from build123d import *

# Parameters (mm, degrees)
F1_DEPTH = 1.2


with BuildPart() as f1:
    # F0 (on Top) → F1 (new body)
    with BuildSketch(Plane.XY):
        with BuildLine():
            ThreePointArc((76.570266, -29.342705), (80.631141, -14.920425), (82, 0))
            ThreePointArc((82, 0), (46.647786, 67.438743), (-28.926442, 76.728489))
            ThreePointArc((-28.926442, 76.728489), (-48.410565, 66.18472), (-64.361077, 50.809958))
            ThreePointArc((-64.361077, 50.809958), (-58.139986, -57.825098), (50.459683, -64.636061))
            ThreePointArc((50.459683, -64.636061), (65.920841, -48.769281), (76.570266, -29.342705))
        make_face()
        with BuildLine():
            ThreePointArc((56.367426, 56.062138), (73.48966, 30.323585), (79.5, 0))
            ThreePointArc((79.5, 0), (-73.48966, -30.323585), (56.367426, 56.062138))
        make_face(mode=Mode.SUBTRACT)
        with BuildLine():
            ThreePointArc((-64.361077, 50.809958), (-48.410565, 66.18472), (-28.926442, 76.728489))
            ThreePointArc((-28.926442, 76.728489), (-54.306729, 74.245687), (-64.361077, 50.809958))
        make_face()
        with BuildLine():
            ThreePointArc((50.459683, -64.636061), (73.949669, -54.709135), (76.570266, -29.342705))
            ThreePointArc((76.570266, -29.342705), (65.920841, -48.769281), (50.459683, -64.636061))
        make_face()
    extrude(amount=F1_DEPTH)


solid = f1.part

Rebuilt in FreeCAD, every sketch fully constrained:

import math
import FreeCAD as App
import Part
import Sketcher
from FreeCAD import Vector
Q = App.Units.Quantity

doc = App.newDocument("Part")
body = doc.addObject("PartDesign::Body", "Body")

sketch1 = body.newObject("Sketcher::SketchObject", "Sketch")
sketch1.AttachmentSupport = (doc.getObject("XY_Plane"), [""])
sketch1.MapMode = "FlatFace"
sketch1.addGeometry([
    Part.ArcOfCircle(Part.Circle(Vector(-0.000002, 0.000001, 0), Vector(0, 0, 1), 82.000002), math.radians(-20.967471), math.radians(-0.000001)),
    Part.ArcOfCircle(Part.Circle(Vector(-0.000001, 0, 0), Vector(0, 0, 1), 82.000001), math.radians(0), math.radians(110.656313)),
    Part.ArcOfCircle(Part.Circle(Vector(-39.517185, 54.026095, 0), Vector(0, 0, 1), 25.051198), math.radians(64.990791), math.radians(187.376137)),
    Part.ArcOfCircle(Part.Circle(Vector(0, 0.000001, 0), Vector(0, 0, 1), 82), math.radians(141.710615), math.radians(307.978227)),
    Part.ArcOfCircle(Part.Circle(Vector(53.810694, -39.810003, 0), Vector(0, 0, 1), 25.051196), math.radians(-97.6873), math.radians(24.698057)),
    Part.ArcOfCircle(Part.Circle(Vector(0, 0, 0), Vector(0, 0, 1), 79.5), math.radians(44.844421), math.radians(360)),
    Part.ArcOfCircle(Part.Circle(Vector(-0.000006, -0.000002, 0), Vector(0, 0, 1), 79.500006), math.radians(0.000002), math.radians(44.844419)),
], False)
sketch1.addConstraint([
    Sketcher.Constraint("Tangent", 0, 2, 1, 1),
    Sketcher.Constraint("Coincident", 1, 2, 2, 1),
    Sketcher.Constraint("Coincident", 2, 2, 3, 1),
    Sketcher.Constraint("Coincident", 3, 2, 4, 1),
    Sketcher.Constraint("Coincident", 4, 2, 0, 1),
    Sketcher.Constraint("Tangent", 5, 1, 6, 2),
    Sketcher.Constraint("Coincident", 6, 1, 5, 2),
    Sketcher.Constraint("Coincident", 0, 3, -1, 1),
    Sketcher.Constraint("Coincident", 3, 3, -1, 1),
    Sketcher.Constraint("Coincident", 5, 3, -1, 1),
    Sketcher.Constraint("Equal", 0, 1),
    Sketcher.Constraint("Equal", 1, 3),
    Sketcher.Constraint("Equal", 2, 4),
    Sketcher.Constraint("PointOnObject", 0, 2, -1),
    Sketcher.Constraint("PointOnObject", 6, 1, -1),
    Sketcher.Constraint("Radius", 0, Q("82.000002 mm")),
    Sketcher.Constraint("Radius", 5, Q("79.5 mm")),
    Sketcher.Constraint("Radius", 2, Q("25.051198 mm")),
    Sketcher.Constraint("DistanceY", 4, 3, 2, 3, Q("93.836098 mm")),
    Sketcher.Constraint("DistanceY", 4, 3, 4, 2, Q("10.467298 mm")),
    Sketcher.Constraint("DistanceX", 1, 2, -1, 1, Q("28.926442 mm")),
    Sketcher.Constraint("DistanceY", -1, 1, 2, 2, Q("50.809958 mm")),
    Sketcher.Constraint("DistanceY", -1, 1, 5, 1, Q("56.062138 mm")),
])
pad1 = body.newObject("PartDesign::Pad", "Pad")
pad1.Profile = sketch1
pad1.Length = 1.2

doc.recompute()
